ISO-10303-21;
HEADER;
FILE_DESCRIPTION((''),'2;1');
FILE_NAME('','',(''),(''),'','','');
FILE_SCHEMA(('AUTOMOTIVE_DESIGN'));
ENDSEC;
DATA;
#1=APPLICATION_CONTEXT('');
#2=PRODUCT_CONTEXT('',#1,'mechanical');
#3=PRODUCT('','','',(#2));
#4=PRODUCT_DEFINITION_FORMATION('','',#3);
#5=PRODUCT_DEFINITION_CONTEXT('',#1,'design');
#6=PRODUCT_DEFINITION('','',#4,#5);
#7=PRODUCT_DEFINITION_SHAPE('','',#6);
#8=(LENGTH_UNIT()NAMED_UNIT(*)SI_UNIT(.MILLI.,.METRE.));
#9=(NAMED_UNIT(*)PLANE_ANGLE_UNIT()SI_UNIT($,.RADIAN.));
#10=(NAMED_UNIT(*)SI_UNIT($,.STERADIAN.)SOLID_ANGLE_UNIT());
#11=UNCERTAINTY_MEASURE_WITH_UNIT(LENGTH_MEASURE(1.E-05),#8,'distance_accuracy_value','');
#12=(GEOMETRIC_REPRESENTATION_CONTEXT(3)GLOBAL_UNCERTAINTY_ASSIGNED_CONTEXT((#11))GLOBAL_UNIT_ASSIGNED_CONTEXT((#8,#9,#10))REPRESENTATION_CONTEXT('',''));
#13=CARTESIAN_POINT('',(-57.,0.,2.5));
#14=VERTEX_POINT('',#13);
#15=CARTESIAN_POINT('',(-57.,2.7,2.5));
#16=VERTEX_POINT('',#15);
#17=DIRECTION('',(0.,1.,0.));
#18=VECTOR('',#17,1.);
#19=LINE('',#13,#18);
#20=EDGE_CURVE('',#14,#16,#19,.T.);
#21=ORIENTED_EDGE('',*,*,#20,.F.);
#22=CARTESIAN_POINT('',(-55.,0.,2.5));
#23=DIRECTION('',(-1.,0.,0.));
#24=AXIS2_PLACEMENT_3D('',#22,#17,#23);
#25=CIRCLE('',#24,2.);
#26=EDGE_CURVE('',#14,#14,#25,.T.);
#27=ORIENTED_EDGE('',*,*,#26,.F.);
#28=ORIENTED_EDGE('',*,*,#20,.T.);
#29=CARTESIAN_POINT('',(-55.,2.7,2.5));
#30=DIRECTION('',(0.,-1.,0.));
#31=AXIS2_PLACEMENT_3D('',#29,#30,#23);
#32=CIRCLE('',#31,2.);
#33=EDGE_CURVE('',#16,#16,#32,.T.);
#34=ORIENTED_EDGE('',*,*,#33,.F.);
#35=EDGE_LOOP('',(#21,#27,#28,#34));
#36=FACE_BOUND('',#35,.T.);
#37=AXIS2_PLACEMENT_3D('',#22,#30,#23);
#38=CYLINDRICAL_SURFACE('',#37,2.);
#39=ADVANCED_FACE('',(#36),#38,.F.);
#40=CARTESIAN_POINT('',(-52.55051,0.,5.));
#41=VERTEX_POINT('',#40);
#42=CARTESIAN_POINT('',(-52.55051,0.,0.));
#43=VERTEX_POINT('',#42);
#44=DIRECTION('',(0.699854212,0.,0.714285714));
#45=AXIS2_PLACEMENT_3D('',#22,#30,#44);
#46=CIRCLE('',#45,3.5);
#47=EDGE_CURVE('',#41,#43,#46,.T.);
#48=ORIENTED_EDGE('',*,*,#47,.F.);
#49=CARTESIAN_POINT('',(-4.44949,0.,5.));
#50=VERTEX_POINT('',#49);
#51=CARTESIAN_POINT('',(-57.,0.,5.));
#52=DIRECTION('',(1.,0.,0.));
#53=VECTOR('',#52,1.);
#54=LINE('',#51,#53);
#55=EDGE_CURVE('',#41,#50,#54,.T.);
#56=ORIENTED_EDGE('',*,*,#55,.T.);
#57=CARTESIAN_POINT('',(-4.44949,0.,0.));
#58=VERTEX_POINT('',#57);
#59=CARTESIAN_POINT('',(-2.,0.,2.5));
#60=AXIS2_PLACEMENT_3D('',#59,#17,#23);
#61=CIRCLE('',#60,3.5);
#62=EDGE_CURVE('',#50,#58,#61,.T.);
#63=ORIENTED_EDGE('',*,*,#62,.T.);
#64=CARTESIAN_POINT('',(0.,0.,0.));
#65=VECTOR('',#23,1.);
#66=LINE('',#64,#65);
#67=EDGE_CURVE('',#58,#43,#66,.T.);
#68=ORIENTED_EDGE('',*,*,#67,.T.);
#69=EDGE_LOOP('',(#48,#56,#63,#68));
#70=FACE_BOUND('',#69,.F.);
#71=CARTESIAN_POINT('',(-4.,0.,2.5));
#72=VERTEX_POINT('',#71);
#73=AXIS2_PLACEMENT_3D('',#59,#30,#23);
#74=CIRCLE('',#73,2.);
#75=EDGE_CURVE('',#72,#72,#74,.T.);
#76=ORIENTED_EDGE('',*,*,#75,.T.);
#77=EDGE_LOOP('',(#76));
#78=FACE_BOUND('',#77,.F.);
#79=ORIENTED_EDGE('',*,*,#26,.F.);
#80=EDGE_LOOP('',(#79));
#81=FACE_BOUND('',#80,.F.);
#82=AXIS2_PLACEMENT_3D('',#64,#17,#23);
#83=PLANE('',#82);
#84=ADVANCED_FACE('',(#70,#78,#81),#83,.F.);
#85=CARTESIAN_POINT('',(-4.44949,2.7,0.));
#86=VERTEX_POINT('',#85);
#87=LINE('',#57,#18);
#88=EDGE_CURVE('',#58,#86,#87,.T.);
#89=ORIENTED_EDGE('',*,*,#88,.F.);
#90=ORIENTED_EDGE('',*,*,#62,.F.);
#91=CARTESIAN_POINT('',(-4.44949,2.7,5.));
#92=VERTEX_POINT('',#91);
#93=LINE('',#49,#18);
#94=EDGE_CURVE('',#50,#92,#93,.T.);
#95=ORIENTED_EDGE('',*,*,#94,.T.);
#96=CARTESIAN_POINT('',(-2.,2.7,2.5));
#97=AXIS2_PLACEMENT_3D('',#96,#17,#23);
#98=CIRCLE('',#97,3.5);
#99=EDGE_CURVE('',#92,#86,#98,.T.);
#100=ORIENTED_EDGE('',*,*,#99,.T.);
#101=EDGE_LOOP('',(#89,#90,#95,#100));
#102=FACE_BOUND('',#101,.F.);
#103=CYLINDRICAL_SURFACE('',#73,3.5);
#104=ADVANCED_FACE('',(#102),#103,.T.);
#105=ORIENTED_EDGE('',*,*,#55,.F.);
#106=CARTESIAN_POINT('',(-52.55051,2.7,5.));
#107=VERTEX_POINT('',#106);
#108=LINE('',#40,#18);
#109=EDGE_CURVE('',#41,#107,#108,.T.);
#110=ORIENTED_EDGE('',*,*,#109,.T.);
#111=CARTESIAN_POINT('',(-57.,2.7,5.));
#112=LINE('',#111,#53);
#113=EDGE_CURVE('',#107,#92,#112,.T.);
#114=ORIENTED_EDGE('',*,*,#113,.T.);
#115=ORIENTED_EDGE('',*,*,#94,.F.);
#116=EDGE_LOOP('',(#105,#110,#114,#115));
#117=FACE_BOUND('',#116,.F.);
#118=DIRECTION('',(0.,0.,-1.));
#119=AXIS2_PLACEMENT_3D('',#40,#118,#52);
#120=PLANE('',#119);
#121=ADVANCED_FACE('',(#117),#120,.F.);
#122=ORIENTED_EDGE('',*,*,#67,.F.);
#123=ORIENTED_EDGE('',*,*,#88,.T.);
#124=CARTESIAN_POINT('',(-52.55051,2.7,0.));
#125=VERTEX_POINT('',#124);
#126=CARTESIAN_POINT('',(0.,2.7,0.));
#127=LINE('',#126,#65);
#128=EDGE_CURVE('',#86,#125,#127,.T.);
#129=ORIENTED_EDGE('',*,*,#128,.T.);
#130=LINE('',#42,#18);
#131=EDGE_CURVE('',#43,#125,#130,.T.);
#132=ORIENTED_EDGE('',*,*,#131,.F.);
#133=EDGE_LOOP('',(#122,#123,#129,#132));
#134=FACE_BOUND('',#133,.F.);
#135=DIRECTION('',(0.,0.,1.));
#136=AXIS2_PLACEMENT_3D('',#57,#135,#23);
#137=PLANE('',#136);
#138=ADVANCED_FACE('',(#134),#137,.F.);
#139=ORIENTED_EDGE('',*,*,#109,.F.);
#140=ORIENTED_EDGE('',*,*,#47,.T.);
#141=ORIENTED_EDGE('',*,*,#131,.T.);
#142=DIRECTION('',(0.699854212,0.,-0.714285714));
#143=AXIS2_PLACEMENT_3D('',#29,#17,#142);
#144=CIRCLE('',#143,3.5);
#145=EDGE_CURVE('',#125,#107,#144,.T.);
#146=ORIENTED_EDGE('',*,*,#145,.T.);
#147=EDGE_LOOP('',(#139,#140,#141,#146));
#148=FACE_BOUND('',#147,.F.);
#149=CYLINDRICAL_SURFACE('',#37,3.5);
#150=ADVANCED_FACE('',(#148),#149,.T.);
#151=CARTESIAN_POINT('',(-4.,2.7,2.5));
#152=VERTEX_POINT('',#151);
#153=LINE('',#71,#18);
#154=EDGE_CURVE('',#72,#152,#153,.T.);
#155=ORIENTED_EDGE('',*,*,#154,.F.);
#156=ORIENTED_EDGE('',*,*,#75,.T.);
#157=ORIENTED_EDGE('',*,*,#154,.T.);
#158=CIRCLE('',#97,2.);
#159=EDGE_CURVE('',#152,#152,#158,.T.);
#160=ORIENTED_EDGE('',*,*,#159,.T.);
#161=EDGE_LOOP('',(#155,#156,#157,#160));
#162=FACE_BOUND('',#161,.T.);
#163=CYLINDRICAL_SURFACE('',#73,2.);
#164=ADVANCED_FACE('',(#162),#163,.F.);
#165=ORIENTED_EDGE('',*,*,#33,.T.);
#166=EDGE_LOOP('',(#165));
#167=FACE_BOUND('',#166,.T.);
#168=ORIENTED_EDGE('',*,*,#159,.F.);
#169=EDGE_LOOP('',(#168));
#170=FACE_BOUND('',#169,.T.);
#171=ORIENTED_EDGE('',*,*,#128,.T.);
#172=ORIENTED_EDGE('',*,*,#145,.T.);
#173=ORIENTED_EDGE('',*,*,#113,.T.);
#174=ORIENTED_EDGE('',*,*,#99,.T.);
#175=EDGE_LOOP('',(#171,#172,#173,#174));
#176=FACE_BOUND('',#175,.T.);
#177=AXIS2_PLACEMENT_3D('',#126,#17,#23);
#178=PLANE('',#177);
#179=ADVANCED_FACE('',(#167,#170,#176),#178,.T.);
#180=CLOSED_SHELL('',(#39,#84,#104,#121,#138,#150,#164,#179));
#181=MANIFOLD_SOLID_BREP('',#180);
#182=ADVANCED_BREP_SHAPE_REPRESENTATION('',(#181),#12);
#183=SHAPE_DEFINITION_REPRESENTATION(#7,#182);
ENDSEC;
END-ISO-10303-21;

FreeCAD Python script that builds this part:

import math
import FreeCAD as App
import Part
import Sketcher
from FreeCAD import Vector

doc = App.newDocument("Part")
body = doc.addObject("PartDesign::Body", "Body")

# Sketch on XZ plane
sketch1 = body.newObject("Sketcher::SketchObject", "Sketch")
sketch1.AttachmentSupport = (doc.getObject("XZ_Plane"), [""])
sketch1.MapMode = "FlatFace"
sketch1.addGeometry([
    Part.ArcOfCircle(Part.Circle(Vector(-2, 2.5, 0), Vector(0, 0, 1), 3.5), math.radians(-134), math.radians(134)),  # 0
    Part.LineSegment(Vector(-4.4, 0, 0), Vector(-52.6, 0, 0)),  # 1
    Part.ArcOfCircle(Part.Circle(Vector(-55, 2.5, 0), Vector(0, 0, 1), 3.5), math.radians(46), math.radians(314)),  # 2
    Part.LineSegment(Vector(-52.6, 5, 0), Vector(-4.4, 5, 0)),  # 3
    Part.Circle(Vector(-2, 2.5, 0), Vector(0, 0, 1), 2),  # 4
    Part.Circle(Vector(-55, 2.5, 0), Vector(0, 0, 1), 2),  # 5
], False)
sketch1.addConstraint([
    Sketcher.Constraint("Coincident", 0, 1, 1, 1),
    Sketcher.Constraint("Coincident", 1, 2, 2, 2),
    Sketcher.Constraint("Coincident", 2, 1, 3, 1),
    Sketcher.Constraint("Coincident", 3, 2, 0, 2),
    Sketcher.Constraint("Horizontal", 1),
    Sketcher.Constraint("Horizontal", 3),
    Sketcher.Constraint("Coincident", 4, 3, 0, 3),
    Sketcher.Constraint("Coincident", 5, 3, 2, 3),
    Sketcher.Constraint("Equal", 0, 2),
    Sketcher.Constraint("Equal", 4, 5),
    Sketcher.Constraint("PointOnObject", 0, 1, -1),
    Sketcher.Constraint("Horizontal", 0, 3, 2, 3),
    Sketcher.Constraint("Vertical", 1, 2, 2, 1),
    Sketcher.Constraint("Diameter", 4, 4.0),
    Sketcher.Constraint("Radius", 0, 3.5),
    Sketcher.Constraint("DistanceY", -1, 1, 2, 1, 5.0),
    Sketcher.Constraint("DistanceX", 0, 3, -1, 1, 2.0),
    Sketcher.Constraint("DistanceX", 2, 3, -1, 1, 55.0),
])
pad1 = body.newObject("PartDesign::Pad", "Pad")
pad1.Profile = sketch1
pad1.Length = 2.7
pad1.Reversed = True

doc.recompute()
